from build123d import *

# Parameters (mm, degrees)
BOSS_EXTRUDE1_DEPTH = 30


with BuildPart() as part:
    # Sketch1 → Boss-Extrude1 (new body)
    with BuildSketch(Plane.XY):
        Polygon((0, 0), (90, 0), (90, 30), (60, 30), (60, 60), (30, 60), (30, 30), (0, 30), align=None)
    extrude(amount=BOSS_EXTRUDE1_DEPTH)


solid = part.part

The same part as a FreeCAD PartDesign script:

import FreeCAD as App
import Part
import Sketcher

V = App.Vector
Q = App.Units.Quantity


def add_polygon(sketch, points):
    """Adds a closed chain of lines whose ends are joined by coincident constraints."""
    first, n = sketch.GeometryCount, len(points)
    for a, b in zip(points, points[1:] + points[:1]):
        sketch.addGeometry(Part.LineSegment(App.Vector(*a, 0), App.Vector(*b, 0)), False)
    for i in range(n):
        sketch.addConstraint(Sketcher.Constraint("Coincident", first + i, 2, first + (i + 1) % n, 1))

doc = App.newDocument("Part")
body = doc.addObject("PartDesign::Body", "Body")

sketch1 = doc.addObject("Sketcher::SketchObject", "Sketch")
body.addObject(sketch1)
sketch1.AttachmentSupport = (doc.XY_Plane, [""])
sketch1.MapMode = "FlatFace"
add_polygon(sketch1, [(0, 0), (90, 0), (90, 30), (60, 30), (60, 60), (30, 60), (30, 30), (0, 30)])
sketch1.addConstraint(Sketcher.Constraint("Horizontal", 0))
sketch1.addConstraint(Sketcher.Constraint("Vertical", 1))
sketch1.addConstraint(Sketcher.Constraint("Horizontal", 2))
sketch1.addConstraint(Sketcher.Constraint("Vertical", 3))
sketch1.addConstraint(Sketcher.Constraint("Horizontal", 4))
sketch1.addConstraint(Sketcher.Constraint("Vertical", 5))
sketch1.addConstraint(Sketcher.Constraint("Horizontal", 6))
sketch1.addConstraint(Sketcher.Constraint("Vertical", 7))
sketch1.addConstraint(Sketcher.Constraint("Coincident", 7, 2, -1, 1))
sketch1.addConstraint(Sketcher.Constraint("Horizontal", 2, 2, 5, 2))
sketch1.addConstraint(Sketcher.Constraint("Equal", 2, 4))
sketch1.addConstraint(Sketcher.Constraint("Equal", 4, 6))
sketch1.addConstraint(Sketcher.Constraint("Equal", 6, 1))
sketch1.addConstraint(Sketcher.Constraint("Equal", 1, 3))
sketch1.addConstraint(Sketcher.Constraint("DistanceX", 0, 1, 0, 2, Q("90 mm")))
pad1 = doc.addObject("PartDesign::Pad", "Pad")
body.addObject(pad1)
pad1.Profile = sketch1
pad1.Length = 30

doc.recompute()
